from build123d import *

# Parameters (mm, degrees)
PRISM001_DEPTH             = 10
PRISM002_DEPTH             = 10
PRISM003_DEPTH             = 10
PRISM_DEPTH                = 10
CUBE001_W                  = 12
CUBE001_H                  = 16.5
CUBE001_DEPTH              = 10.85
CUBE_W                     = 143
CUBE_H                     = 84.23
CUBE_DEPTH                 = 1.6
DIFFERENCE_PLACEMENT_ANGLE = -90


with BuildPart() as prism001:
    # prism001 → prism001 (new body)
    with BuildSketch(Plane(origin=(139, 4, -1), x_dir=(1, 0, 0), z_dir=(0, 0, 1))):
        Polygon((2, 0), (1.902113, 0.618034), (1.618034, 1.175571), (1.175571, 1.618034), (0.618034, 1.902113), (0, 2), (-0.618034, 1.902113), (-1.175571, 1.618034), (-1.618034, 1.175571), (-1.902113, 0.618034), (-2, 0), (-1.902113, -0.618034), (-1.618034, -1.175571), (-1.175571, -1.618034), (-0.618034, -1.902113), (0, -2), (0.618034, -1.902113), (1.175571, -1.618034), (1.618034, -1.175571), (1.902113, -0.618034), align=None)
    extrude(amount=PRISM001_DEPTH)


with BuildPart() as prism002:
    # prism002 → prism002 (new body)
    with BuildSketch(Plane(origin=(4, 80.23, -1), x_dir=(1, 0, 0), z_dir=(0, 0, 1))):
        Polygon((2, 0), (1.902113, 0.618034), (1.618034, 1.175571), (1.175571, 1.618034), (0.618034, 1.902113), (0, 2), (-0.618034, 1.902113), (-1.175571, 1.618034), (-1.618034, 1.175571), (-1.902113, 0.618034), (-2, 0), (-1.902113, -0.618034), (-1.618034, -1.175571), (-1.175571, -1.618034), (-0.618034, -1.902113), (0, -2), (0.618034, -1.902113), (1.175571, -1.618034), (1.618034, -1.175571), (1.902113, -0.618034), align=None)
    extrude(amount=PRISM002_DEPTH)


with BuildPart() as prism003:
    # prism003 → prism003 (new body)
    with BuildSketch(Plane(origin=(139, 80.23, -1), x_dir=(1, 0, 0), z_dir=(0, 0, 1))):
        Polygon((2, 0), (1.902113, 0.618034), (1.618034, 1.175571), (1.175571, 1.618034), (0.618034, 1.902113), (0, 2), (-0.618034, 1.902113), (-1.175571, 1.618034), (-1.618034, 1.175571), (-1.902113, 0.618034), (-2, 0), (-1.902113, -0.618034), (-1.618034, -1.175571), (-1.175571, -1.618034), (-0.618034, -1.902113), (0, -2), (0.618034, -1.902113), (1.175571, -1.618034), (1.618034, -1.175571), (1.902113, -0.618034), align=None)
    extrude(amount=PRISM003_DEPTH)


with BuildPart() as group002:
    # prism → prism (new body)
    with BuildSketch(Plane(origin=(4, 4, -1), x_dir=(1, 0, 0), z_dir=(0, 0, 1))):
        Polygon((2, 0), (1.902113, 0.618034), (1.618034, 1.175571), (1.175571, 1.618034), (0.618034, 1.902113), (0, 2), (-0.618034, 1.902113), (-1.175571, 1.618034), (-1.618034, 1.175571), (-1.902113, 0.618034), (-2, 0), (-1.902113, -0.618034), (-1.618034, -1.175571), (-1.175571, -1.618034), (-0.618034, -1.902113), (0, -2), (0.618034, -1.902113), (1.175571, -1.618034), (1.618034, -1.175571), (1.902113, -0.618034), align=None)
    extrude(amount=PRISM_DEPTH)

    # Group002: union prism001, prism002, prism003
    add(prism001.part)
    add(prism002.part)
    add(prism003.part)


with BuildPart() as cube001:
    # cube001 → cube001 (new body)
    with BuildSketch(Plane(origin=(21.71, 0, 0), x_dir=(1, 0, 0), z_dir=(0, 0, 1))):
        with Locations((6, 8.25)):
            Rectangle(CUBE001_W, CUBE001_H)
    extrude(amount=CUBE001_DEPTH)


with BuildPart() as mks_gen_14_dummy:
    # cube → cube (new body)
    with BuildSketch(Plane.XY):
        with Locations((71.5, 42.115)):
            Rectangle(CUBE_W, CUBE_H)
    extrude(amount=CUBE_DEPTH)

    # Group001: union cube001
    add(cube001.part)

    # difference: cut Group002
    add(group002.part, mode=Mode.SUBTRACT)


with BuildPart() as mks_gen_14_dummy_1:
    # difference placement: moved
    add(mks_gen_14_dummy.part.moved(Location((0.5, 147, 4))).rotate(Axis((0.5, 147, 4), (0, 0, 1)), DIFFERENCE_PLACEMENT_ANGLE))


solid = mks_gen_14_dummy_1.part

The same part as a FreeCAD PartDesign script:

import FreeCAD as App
import Part
import Sketcher
from FreeCAD import Vector
Q = App.Units.Quantity


def add_polygon(sketch, points):
    """Adds a closed chain of lines whose ends are joined by coincident constraints."""
    first, n = sketch.GeometryCount, len(points)
    for a, b in zip(points, points[1:] + points[:1]):
        sketch.addGeometry(Part.LineSegment(App.Vector(*a, 0), App.Vector(*b, 0)), False)
    for i in range(n):
        sketch.addConstraint(Sketcher.Constraint("Coincident", first + i, 2, first + (i + 1) % n, 1))

doc = App.newDocument("Part")
body = doc.addObject("PartDesign::Body", "Body")

# Sketch on XY plane
sketch1 = body.newObject("Sketcher::SketchObject", "Sketch")
sketch1.AttachmentSupport = (doc.getObject("XY_Plane"), [""])
sketch1.MapMode = "FlatFace"
sketch1.AttachmentOffset = App.Placement(Vector(0, 0, -1), App.Rotation())
add_polygon(sketch1, [(141, 4), (140.9, 4.6), (140.6, 5.2), (140.2, 5.6), (139.6, 5.9), (139, 6), (138.4, 5.9), (137.8, 5.6), (137.4, 5.2), (137.1, 4.6), (137, 4), (137.1, 3.4), (137.4, 2.8), (137.8, 2.4), (138.4, 2.1), (139, 2), (139.6, 2.1), (140.2, 2.4), (140.6, 2.8), (140.9, 3.4)])  # lines 0-19
sketch1.addConstraint([
    Sketcher.Constraint("Perpendicular", 0, 5),
    Sketcher.Constraint("Perpendicular", 1, 6),
    Sketcher.Constraint("Perpendicular", 2, 7),
    Sketcher.Constraint("Perpendicular", 3, 8),
    Sketcher.Constraint("Perpendicular", 4, 9),
    Sketcher.Constraint("Perpendicular", 5, 10),
    Sketcher.Constraint("Perpendicular", 6, 11),
    Sketcher.Constraint("Perpendicular", 7, 12),
    Sketcher.Constraint("Perpendicular", 8, 13),
    Sketcher.Constraint("Perpendicular", 9, 14),
    Sketcher.Constraint("Perpendicular", 10, 15),
    Sketcher.Constraint("Perpendicular", 11, 16),
    Sketcher.Constraint("Perpendicular", 12, 17),
    Sketcher.Constraint("Perpendicular", 13, 18),
    Sketcher.Constraint("Perpendicular", 14, 19),
    Sketcher.Constraint("Horizontal", 3, 2, 5, 2),
    Sketcher.Constraint("Horizontal", 2, 2, 6, 2),
    Sketcher.Constraint("Horizontal", 1, 2, 7, 2),
    Sketcher.Constraint("Horizontal", 0, 2, 8, 2),
    Sketcher.Constraint("Horizontal", 13, 2, 15, 2),
    Sketcher.Constraint("Horizontal", 12, 2, 16, 2),
    Sketcher.Constraint("Horizontal", 11, 2, 17, 2),
    Sketcher.Constraint("Horizontal", 10, 2, 18, 2),
    Sketcher.Constraint("Horizontal", 9, 2, 19, 2),
    Sketcher.Constraint("Vertical", 8, 2, 10, 2),
    Sketcher.Constraint("Vertical", 7, 2, 11, 2),
    Sketcher.Constraint("Vertical", 6, 2, 12, 2),
    Sketcher.Constraint("Vertical", 5, 2, 13, 2),
    Sketcher.Constraint("Vertical", 4, 2, 14, 2),
    Sketcher.Constraint("Vertical", 3, 2, 15, 2),
    Sketcher.Constraint("Vertical", 2, 2, 16, 2),
    Sketcher.Constraint("Equal", 0, 1),
    Sketcher.Constraint("Equal", 1, 2),
    Sketcher.Constraint("Equal", 2, 3),
    Sketcher.Constraint("Equal", 3, 4),
    Sketcher.Constraint("Angle", 0, Q("99.000003 deg")),
    Sketcher.Constraint("DistanceX", -1, 1, 4, 2, 139.0),
    Sketcher.Constraint("DistanceY", -1, 1, 4, 2, 6.0),
    Sketcher.Constraint("DistanceX", -1, 1, 9, 2, 137.0),
    Sketcher.Constraint("DistanceY", 0, 2, 2, 2, 1.0),
])
pad1 = body.newObject("PartDesign::Pad", "Pad")
pad1.Profile = sketch1
pad1.Length = 10
body2 = doc.addObject("PartDesign::Body", "Body001")

# Sketch on XY plane
sketch2 = body2.newObject("Sketcher::SketchObject", "Sketch001")
sketch2.AttachmentSupport = (doc.getObject("XY_Plane001"), [""])
sketch2.MapMode = "FlatFace"
sketch2.AttachmentOffset = App.Placement(Vector(0, 0, -1), App.Rotation())
add_polygon(sketch2, [(6, 80.2), (5.9, 80.8), (5.6, 81.4), (5.2, 81.8), (4.6, 82.1), (4, 82.2), (3.4, 82.1), (2.8, 81.8), (2.4, 81.4), (2.1, 80.8), (2, 80.2), (2.1, 79.6), (2.4, 79.1), (2.8, 78.6), (3.4, 78.3), (4, 78.2), (4.6, 78.3), (5.2, 78.6), (5.6, 79.1), (5.9, 79.6)])  # lines 0-19
sketch2.addConstraint([
    Sketcher.Constraint("Perpendicular", 0, 5),
    Sketcher.Constraint("Perpendicular", 1, 6),
    Sketcher.Constraint("Perpendicular", 2, 7),
    Sketcher.Constraint("Perpendicular", 3, 8),
    Sketcher.Constraint("Perpendicular", 4, 9),
    Sketcher.Constraint("Perpendicular", 5, 10),
    Sketcher.Constraint("Perpendicular", 6, 11),
    Sketcher.Constraint("Perpendicular", 7, 12),
    Sketcher.Constraint("Perpendicular", 8, 13),
    Sketcher.Constraint("Perpendicular", 9, 14),
    Sketcher.Constraint("Perpendicular", 10, 15),
    Sketcher.Constraint("Perpendicular", 11, 16),
    Sketcher.Constraint("Perpendicular", 12, 17),
    Sketcher.Constraint("Perpendicular", 13, 18),
    Sketcher.Constraint("Perpendicular", 14, 19),
    Sketcher.Constraint("Horizontal", 3, 2, 5, 2),
    Sketcher.Constraint("Horizontal", 2, 2, 6, 2),
    Sketcher.Constraint("Horizontal", 1, 2, 7, 2),
    Sketcher.Constraint("Horizontal", 0, 2, 8, 2),
    Sketcher.Constraint("Horizontal", 13, 2, 15, 2),
    Sketcher.Constraint("Horizontal", 12, 2, 16, 2),
    Sketcher.Constraint("Horizontal", 11, 2, 17, 2),
    Sketcher.Constraint("Horizontal", 10, 2, 18, 2),
    Sketcher.Constraint("Horizontal", 9, 2, 19, 2),
    Sketcher.Constraint("Vertical", 8, 2, 10, 2),
    Sketcher.Constraint("Vertical", 7, 2, 11, 2),
    Sketcher.Constraint("Vertical", 6, 2, 12, 2),
    Sketcher.Constraint("Vertical", 5, 2, 13, 2),
    Sketcher.Constraint("Vertical", 4, 2, 14, 2),
    Sketcher.Constraint("Vertical", 3, 2, 15, 2),
    Sketcher.Constraint("Vertical", 2, 2, 16, 2),
    Sketcher.Constraint("Equal", 0, 1),
    Sketcher.Constraint("Equal", 1, 2),
    Sketcher.Constraint("Equal", 2, 3),
    Sketcher.Constraint("Equal", 3, 4),
    Sketcher.Constraint("Angle", 0, Q("99.000003 deg")),
    Sketcher.Constraint("DistanceX", -1, 1, 4, 2, 4.0),
    Sketcher.Constraint("DistanceX", -1, 1, 9, 2, 2.0),
    Sketcher.Constraint("DistanceY", 0, 2, 2, 2, 1.0),
    Sketcher.Constraint("DistanceY", -1, 1, 4, 2, 82.23),
])
pad2 = body2.newObject("PartDesign::Pad", "Pad001")
pad2.Profile = sketch2
pad2.Length = 10
body3 = doc.addObject("PartDesign::Body", "Body002")

# Sketch on XY plane
sketch3 = body3.newObject("Sketcher::SketchObject", "Sketch002")
sketch3.AttachmentSupport = (doc.getObject("XY_Plane002"), [""])
sketch3.MapMode = "FlatFace"
sketch3.AttachmentOffset = App.Placement(Vector(0, 0, -1), App.Rotation())
add_polygon(sketch3, [(141, 80.2), (140.9, 80.8), (140.6, 81.4), (140.2, 81.8), (139.6, 82.1), (139, 82.2), (138.4, 82.1), (137.8, 81.8), (137.4, 81.4), (137.1, 80.8), (137, 80.2), (137.1, 79.6), (137.4, 79.1), (137.8, 78.6), (138.4, 78.3), (139, 78.2), (139.6, 78.3), (140.2, 78.6), (140.6, 79.1), (140.9, 79.6)])  # lines 0-19
sketch3.addConstraint([
    Sketcher.Constraint("Perpendicular", 0, 5),
    Sketcher.Constraint("Perpendicular", 1, 6),
    Sketcher.Constraint("Perpendicular", 2, 7),
    Sketcher.Constraint("Perpendicular", 3, 8),
    Sketcher.Constraint("Perpendicular", 4, 9),
    Sketcher.Constraint("Perpendicular", 5, 10),
    Sketcher.Constraint("Perpendicular", 6, 11),
    Sketcher.Constraint("Perpendicular", 7, 12),
    Sketcher.Constraint("Perpendicular", 8, 13),
    Sketcher.Constraint("Perpendicular", 9, 14),
    Sketcher.Constraint("Perpendicular", 10, 15),
    Sketcher.Constraint("Perpendicular", 11, 16),
    Sketcher.Constraint("Perpendicular", 12, 17),
    Sketcher.Constraint("Perpendicular", 13, 18),
    Sketcher.Constraint("Perpendicular", 14, 19),
    Sketcher.Constraint("Horizontal", 3, 2, 5, 2),
    Sketcher.Constraint("Horizontal", 2, 2, 6, 2),
    Sketcher.Constraint("Horizontal", 1, 2, 7, 2),
    Sketcher.Constraint("Horizontal", 0, 2, 8, 2),
    Sketcher.Constraint("Horizontal", 13, 2, 15, 2),
    Sketcher.Constraint("Horizontal", 12, 2, 16, 2),
    Sketcher.Constraint("Horizontal", 11, 2, 17, 2),
    Sketcher.Constraint("Horizontal", 10, 2, 18, 2),
    Sketcher.Constraint("Horizontal", 9, 2, 19, 2),
    Sketcher.Constraint("Vertical", 8, 2, 10, 2),
    Sketcher.Constraint("Vertical", 7, 2, 11, 2),
    Sketcher.Constraint("Vertical", 6, 2, 12, 2),
    Sketcher.Constraint("Vertical", 5, 2, 13, 2),
    Sketcher.Constraint("Vertical", 4, 2, 14, 2),
    Sketcher.Constraint("Vertical", 3, 2, 15, 2),
    Sketcher.Constraint("Vertical", 2, 2, 16, 2),
    Sketcher.Constraint("Equal", 0, 1),
    Sketcher.Constraint("Equal", 1, 2),
    Sketcher.Constraint("Equal", 2, 3),
    Sketcher.Constraint("Equal", 3, 4),
    Sketcher.Constraint("Angle", 0, Q("99.000003 deg")),
    Sketcher.Constraint("DistanceX", -1, 1, 4, 2, 139.0),
    Sketcher.Constraint("DistanceX", -1, 1, 9, 2, 137.0),
    Sketcher.Constraint("DistanceY", 0, 2, 2, 2, 1.0),
    Sketcher.Constraint("DistanceY", -1, 1, 4, 2, 82.23),
])
pad3 = body3.newObject("PartDesign::Pad", "Pad002")
pad3.Profile = sketch3
pad3.Length = 10
body4 = doc.addObject("PartDesign::Body", "Body003")
body4.AllowCompound = True

# Sketch on XY plane
sketch4 = body4.newObject("Sketcher::SketchObject", "Sketch003")
sketch4.AttachmentSupport = (doc.getObject("XY_Plane003"), [""])
sketch4.MapMode = "FlatFace"
sketch4.AttachmentOffset = App.Placement(Vector(0, 0, -1), App.Rotation())
add_polygon(sketch4, [(6, 4), (5.9, 4.6), (5.6, 5.2), (5.2, 5.6), (4.6, 5.9), (4, 6), (3.4, 5.9), (2.8, 5.6), (2.4, 5.2), (2.1, 4.6), (2, 4), (2.1, 3.4), (2.4, 2.8), (2.8, 2.4), (3.4, 2.1), (4, 2), (4.6, 2.1), (5.2, 2.4), (5.6, 2.8), (5.9, 3.4)])  # lines 0-19
sketch4.addConstraint([
    Sketcher.Constraint("Perpendicular", 0, 5),
    Sketcher.Constraint("Perpendicular", 1, 6),
    Sketcher.Constraint("Perpendicular", 2, 7),
    Sketcher.Constraint("Perpendicular", 3, 8),
    Sketcher.Constraint("Perpendicular", 4, 9),
    Sketcher.Constraint("Perpendicular", 5, 10),
    Sketcher.Constraint("Perpendicular", 6, 11),
    Sketcher.Constraint("Perpendicular", 7, 12),
    Sketcher.Constraint("Perpendicular", 8, 13),
    Sketcher.Constraint("Perpendicular", 9, 14),
    Sketcher.Constraint("Perpendicular", 10, 15),
    Sketcher.Constraint("Perpendicular", 11, 16),
    Sketcher.Constraint("Perpendicular", 12, 17),
    Sketcher.Constraint("Perpendicular", 13, 18),
    Sketcher.Constraint("Perpendicular", 14, 19),
    Sketcher.Constraint("Horizontal", 3, 2, 5, 2),
    Sketcher.Constraint("Horizontal", 2, 2, 6, 2),
    Sketcher.Constraint("Horizontal", 1, 2, 7, 2),
    Sketcher.Constraint("Horizontal", 0, 2, 8, 2),
    Sketcher.Constraint("Horizontal", 13, 2, 15, 2),
    Sketcher.Constraint("Horizontal", 12, 2, 16, 2),
    Sketcher.Constraint("Horizontal", 11, 2, 17, 2),
    Sketcher.Constraint("Horizontal", 10, 2, 18, 2),
    Sketcher.Constraint("Horizontal", 9, 2, 19, 2),
    Sketcher.Constraint("Vertical", 8, 2, 10, 2),
    Sketcher.Constraint("Vertical", 7, 2, 11, 2),
    Sketcher.Constraint("Vertical", 6, 2, 12, 2),
    Sketcher.Constraint("Vertical", 5, 2, 13, 2),
    Sketcher.Constraint("Vertical", 4, 2, 14, 2),
    Sketcher.Constraint("Vertical", 3, 2, 15, 2),
    Sketcher.Constraint("Vertical", 2, 2, 16, 2),
    Sketcher.Constraint("Equal", 0, 1),
    Sketcher.Constraint("Equal", 1, 2),
    Sketcher.Constraint("Equal", 2, 3),
    Sketcher.Constraint("Equal", 3, 4),
    Sketcher.Constraint("Angle", 0, Q("99.000003 deg")),
    Sketcher.Constraint("DistanceX", -1, 1, 4, 2, 4.0),
    Sketcher.Constraint("DistanceY", -1, 1, 4, 2, 6.0),
    Sketcher.Constraint("DistanceX", -1, 1, 9, 2, 2.0),
    Sketcher.Constraint("DistanceY", 0, 2, 2, 2, 1.0),
])
pad4 = body4.newObject("PartDesign::Pad", "Pad003")
pad4.Profile = sketch4
pad4.Length = 10
doc.recompute()

boolean = body4.newObject("PartDesign::Boolean", "Boolean")
boolean.Type = "Fuse"
boolean.addObjects([body])
doc.recompute()

boolean2 = body4.newObject("PartDesign::Boolean", "Boolean001")
boolean2.Type = "Fuse"
boolean2.addObjects([body2])
doc.recompute()

boolean3 = body4.newObject("PartDesign::Boolean", "Boolean002")
boolean3.Type = "Fuse"
boolean3.addObjects([body3])
body5 = doc.addObject("PartDesign::Body", "Body004")

# Sketch on XY plane
sketch5 = body5.newObject("Sketcher::SketchObject", "Sketch004")
sketch5.AttachmentSupport = (doc.getObject("XY_Plane004"), [""])
sketch5.MapMode = "FlatFace"
add_polygon(sketch5, [(22, 16), (22, 0), (34, 0), (34, 16)])  # lines 0-3
sketch5.addConstraint([
    Sketcher.Constraint("Vertical", 0),
    Sketcher.Constraint("Horizontal", 1),
    Sketcher.Constraint("Vertical", 2),
    Sketcher.Constraint("Horizontal", 3),
    Sketcher.Constraint("PointOnObject", 0, 2, -1),
    Sketcher.Constraint("DistanceX", 1, 1, 1, 2, 12.0),
    Sketcher.Constraint("DistanceY", 0, 2, 0, 1, 16.5),
    Sketcher.Constraint("DistanceX", -1, 1, 0, 2, 21.71),
])
pad5 = body5.newObject("PartDesign::Pad", "Pad004")
pad5.Profile = sketch5
pad5.Length = 10.85
body6 = doc.addObject("PartDesign::Body", "Body005")

# Sketch on XY plane
sketch6 = body6.newObject("Sketcher::SketchObject", "Sketch005")
sketch6.AttachmentSupport = (doc.getObject("XY_Plane005"), [""])
sketch6.MapMode = "FlatFace"
add_polygon(sketch6, [(0, 84), (0, 0), (143, 0), (143, 84)])  # lines 0-3
sketch6.addConstraint([
    Sketcher.Constraint("Vertical", 0),
    Sketcher.Constraint("Horizontal", 1),
    Sketcher.Constraint("Vertical", 2),
    Sketcher.Constraint("Horizontal", 3),
    Sketcher.Constraint("Coincident", 0, 2, -1, 1),
    Sketcher.Constraint("DistanceX", 1, 1, 1, 2, 143.0),
    Sketcher.Constraint("DistanceY", 0, 2, 0, 1, 84.23),
])
pad6 = body6.newObject("PartDesign::Pad", "Pad005")
pad6.Profile = sketch6
pad6.Length = 1.6
doc.recompute()

boolean4 = body6.newObject("PartDesign::Boolean", "Boolean003")
boolean4.Type = "Fuse"
boolean4.addObjects([body5])
doc.recompute()

boolean5 = body6.newObject("PartDesign::Boolean", "Boolean004")
boolean5.Type = "Cut"
boolean5.addObjects([body4])
body7 = doc.addObject("PartDesign::Body", "Body006")
doc.recompute()

body6.Placement = App.Placement(Vector(0.5, 147, 4), App.Rotation(Vector(0, 0, 1), 270))
boolean6 = body7.newObject("PartDesign::Boolean", "Boolean005")
boolean6.Type = "Fuse"
boolean6.addObjects([body6])

doc.recompute()
